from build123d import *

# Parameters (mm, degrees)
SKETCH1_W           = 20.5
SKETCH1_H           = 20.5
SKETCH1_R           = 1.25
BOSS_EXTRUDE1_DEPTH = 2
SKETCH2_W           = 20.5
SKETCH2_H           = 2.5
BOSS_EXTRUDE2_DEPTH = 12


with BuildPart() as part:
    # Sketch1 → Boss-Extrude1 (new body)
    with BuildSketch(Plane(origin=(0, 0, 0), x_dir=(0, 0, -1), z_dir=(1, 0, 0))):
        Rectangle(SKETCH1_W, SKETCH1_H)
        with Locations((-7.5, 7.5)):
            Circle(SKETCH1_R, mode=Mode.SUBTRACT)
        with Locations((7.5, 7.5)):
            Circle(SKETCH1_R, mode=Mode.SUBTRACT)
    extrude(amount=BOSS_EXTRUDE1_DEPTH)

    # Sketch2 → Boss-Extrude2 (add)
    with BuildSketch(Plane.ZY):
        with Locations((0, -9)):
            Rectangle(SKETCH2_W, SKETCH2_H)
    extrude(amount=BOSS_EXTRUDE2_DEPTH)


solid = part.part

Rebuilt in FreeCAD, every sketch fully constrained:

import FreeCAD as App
import Part
import Sketcher
from FreeCAD import Vector

doc = App.newDocument("Part")
params = doc.addObject("Spreadsheet::Sheet", "Params")
for row, (alias, value) in enumerate([
    ("sketch1_diameter", "2.5 mm"),
    ("sketch1_width", "20.5 mm"),
    ("pad1_length", "2 mm"),
    ("sketch2_width", "2.5 mm"),
    ("sketch2_height", "20.5 mm"),
    ("pad2_length", "12 mm"),
], start=1):
    params.set(f"A{row}", alias)
    params.set(f"B{row}", "=" + value)
    params.setAlias(f"B{row}", alias)

body = doc.addObject("PartDesign::Body", "Body")

# Sketch on YZ plane
sketch1 = body.newObject("Sketcher::SketchObject", "Sketch")
sketch1.AttachmentSupport = (doc.getObject("YZ_Plane"), [""])
sketch1.MapMode = "FlatFace"
sketch1.addGeometry([
    Part.LineSegment(Vector(10.2, 10.2, 0), Vector(-10.2, 10.2, 0)),  # 0
    Part.LineSegment(Vector(-10.2, 10.2, 0), Vector(-10.2, -10.2, 0)),  # 1
    Part.LineSegment(Vector(-10.2, -10.2, 0), Vector(10.2, -10.2, 0)),  # 2
    Part.LineSegment(Vector(10.2, -10.2, 0), Vector(10.2, 10.2, 0)),  # 3
    Part.Circle(Vector(7.5, 7.5, 0), Vector(0, 0, 1), 1.2),  # 4
    Part.Circle(Vector(7.5, -7.5, 0), Vector(0, 0, 1), 1.2),  # 5
], False)
sketch1.addConstraint([
    Sketcher.Constraint("Coincident", 0, 2, 1, 1),
    Sketcher.Constraint("Coincident", 1, 2, 2, 1),
    Sketcher.Constraint("Coincident", 2, 2, 3, 1),
    Sketcher.Constraint("Coincident", 3, 2, 0, 1),
    Sketcher.Constraint("Horizontal", 0),
    Sketcher.Constraint("Vertical", 1),
    Sketcher.Constraint("Horizontal", 2),
    Sketcher.Constraint("Vertical", 3),
    Sketcher.Constraint("Equal", 4, 5),
    Sketcher.Constraint("Symmetric", 0, 2, 2, 2, -1, 1),
    Sketcher.Constraint("Symmetric", 4, 3, 5, 3, -1),
    Sketcher.Constraint("Equal", 2, 1),
    Sketcher.Constraint("Diameter", 4, 2.5),
    Sketcher.Constraint("DistanceX", 0, 2, 0, 1, 20.5),
    Sketcher.Constraint("DistanceY", 5, 3, 4, 3, 15.0),
    Sketcher.Constraint("DistanceX", -1, 1, 4, 3, 7.5),
])
sketch1.setExpression("Constraints[12]", "Params.sketch1_diameter")
sketch1.setExpression("Constraints[13]", "Params.sketch1_width")
pad1 = body.newObject("PartDesign::Pad", "Pad")
pad1.Profile = sketch1
pad1.setExpression("Length", "Params.pad1_length")

# Sketch on YZ plane
sketch2 = body.newObject("Sketcher::SketchObject", "Sketch001")
sketch2.AttachmentSupport = (doc.getObject("YZ_Plane"), [""])
sketch2.MapMode = "FlatFace"
sketch2.addGeometry([
    Part.LineSegment(Vector(-7.8, -10.2, 0), Vector(-10.2, -10.2, 0)),
    Part.LineSegment(Vector(-10.2, -10.2, 0), Vector(-10.2, 10.2, 0)),
    Part.LineSegment(Vector(-10.2, 10.2, 0), Vector(-7.8, 10.2, 0)),
    Part.LineSegment(Vector(-7.8, 10.2, 0), Vector(-7.8, -10.2, 0)),
], False)
sketch2.addConstraint([
    Sketcher.Constraint("Coincident", 0, 2, 1, 1),
    Sketcher.Constraint("Coincident", 1, 2, 2, 1),
    Sketcher.Constraint("Coincident", 2, 2, 3, 1),
    Sketcher.Constraint("Coincident", 3, 2, 0, 1),
    Sketcher.Constraint("Horizontal", 0),
    Sketcher.Constraint("Vertical", 1),
    Sketcher.Constraint("Horizontal", 2),
    Sketcher.Constraint("Vertical", 3),
    Sketcher.Constraint("DistanceX", 0, 2, 0, 1, 2.5),
    Sketcher.Constraint("DistanceY", 1, 1, 1, 2, 20.5),
    Sketcher.Constraint("DistanceX", 0, 2, -1, 1, 10.25),
    Sketcher.Constraint("DistanceY", 0, 2, -1, 1, 10.25),
])
sketch2.setExpression("Constraints[8]", "Params.sketch2_width")
sketch2.setExpression("Constraints[9]", "Params.sketch2_height")
pad2 = body.newObject("PartDesign::Pad", "Pad001")
pad2.Profile = sketch2
pad2.setExpression("Length", "Params.pad2_length")
pad2.Reversed = True

doc.recompute()
